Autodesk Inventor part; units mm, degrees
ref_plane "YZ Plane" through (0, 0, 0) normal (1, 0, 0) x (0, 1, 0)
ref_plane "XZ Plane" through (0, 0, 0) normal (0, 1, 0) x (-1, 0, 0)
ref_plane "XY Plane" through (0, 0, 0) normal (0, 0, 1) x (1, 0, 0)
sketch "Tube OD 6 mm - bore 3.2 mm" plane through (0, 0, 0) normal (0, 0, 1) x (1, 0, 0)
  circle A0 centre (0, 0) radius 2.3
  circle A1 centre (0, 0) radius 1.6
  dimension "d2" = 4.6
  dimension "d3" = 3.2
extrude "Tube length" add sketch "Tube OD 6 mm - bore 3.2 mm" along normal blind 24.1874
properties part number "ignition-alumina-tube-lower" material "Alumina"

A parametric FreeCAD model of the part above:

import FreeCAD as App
import Part
import Sketcher

V = App.Vector

doc = App.newDocument("Part")
params = doc.addObject("Spreadsheet::Sheet", "Params")
for row, (alias, value) in enumerate([
    ("sketch1_diameter", "4.6 mm"),
    ("sketch1_diameter2", "3.2 mm"),
    ("pad1_length", "24.1874 mm"),
], start=1):
    params.set(f"A{row}", alias)
    params.set(f"B{row}", "=" + value)
    params.setAlias(f"B{row}", alias)

body = doc.addObject("PartDesign::Body", "Body")

# Sketch on XY plane
sketch1 = body.newObject("Sketcher::SketchObject", "Sketch")
sketch1.AttachmentSupport = (doc.getObject("XY_Plane"), [""])
sketch1.MapMode = "FlatFace"
sketch1.addGeometry(Part.Circle(V(0, 0, 0), V(0, 0, 1), 2.3), False)
sketch1.addGeometry(Part.Circle(V(0, 0, 0), V(0, 0, 1), 1.6), False)
sketch1.addConstraint(Sketcher.Constraint("Coincident", 0, 3, -1, 1))
sketch1.addConstraint(Sketcher.Constraint("Coincident", 1, 3, -1, 1))
sketch1.addConstraint(Sketcher.Constraint("Diameter", 0, 4.6))
sketch1.addConstraint(Sketcher.Constraint("Diameter", 1, 3.2))
sketch1.setExpression("Constraints[2]", "Params.sketch1_diameter")
sketch1.setExpression("Constraints[3]", "Params.sketch1_diameter2")
pad1 = body.newObject("PartDesign::Pad", "Pad")
pad1.Profile = sketch1
pad1.setExpression("Length", "Params.pad1_length")

doc.recompute()
